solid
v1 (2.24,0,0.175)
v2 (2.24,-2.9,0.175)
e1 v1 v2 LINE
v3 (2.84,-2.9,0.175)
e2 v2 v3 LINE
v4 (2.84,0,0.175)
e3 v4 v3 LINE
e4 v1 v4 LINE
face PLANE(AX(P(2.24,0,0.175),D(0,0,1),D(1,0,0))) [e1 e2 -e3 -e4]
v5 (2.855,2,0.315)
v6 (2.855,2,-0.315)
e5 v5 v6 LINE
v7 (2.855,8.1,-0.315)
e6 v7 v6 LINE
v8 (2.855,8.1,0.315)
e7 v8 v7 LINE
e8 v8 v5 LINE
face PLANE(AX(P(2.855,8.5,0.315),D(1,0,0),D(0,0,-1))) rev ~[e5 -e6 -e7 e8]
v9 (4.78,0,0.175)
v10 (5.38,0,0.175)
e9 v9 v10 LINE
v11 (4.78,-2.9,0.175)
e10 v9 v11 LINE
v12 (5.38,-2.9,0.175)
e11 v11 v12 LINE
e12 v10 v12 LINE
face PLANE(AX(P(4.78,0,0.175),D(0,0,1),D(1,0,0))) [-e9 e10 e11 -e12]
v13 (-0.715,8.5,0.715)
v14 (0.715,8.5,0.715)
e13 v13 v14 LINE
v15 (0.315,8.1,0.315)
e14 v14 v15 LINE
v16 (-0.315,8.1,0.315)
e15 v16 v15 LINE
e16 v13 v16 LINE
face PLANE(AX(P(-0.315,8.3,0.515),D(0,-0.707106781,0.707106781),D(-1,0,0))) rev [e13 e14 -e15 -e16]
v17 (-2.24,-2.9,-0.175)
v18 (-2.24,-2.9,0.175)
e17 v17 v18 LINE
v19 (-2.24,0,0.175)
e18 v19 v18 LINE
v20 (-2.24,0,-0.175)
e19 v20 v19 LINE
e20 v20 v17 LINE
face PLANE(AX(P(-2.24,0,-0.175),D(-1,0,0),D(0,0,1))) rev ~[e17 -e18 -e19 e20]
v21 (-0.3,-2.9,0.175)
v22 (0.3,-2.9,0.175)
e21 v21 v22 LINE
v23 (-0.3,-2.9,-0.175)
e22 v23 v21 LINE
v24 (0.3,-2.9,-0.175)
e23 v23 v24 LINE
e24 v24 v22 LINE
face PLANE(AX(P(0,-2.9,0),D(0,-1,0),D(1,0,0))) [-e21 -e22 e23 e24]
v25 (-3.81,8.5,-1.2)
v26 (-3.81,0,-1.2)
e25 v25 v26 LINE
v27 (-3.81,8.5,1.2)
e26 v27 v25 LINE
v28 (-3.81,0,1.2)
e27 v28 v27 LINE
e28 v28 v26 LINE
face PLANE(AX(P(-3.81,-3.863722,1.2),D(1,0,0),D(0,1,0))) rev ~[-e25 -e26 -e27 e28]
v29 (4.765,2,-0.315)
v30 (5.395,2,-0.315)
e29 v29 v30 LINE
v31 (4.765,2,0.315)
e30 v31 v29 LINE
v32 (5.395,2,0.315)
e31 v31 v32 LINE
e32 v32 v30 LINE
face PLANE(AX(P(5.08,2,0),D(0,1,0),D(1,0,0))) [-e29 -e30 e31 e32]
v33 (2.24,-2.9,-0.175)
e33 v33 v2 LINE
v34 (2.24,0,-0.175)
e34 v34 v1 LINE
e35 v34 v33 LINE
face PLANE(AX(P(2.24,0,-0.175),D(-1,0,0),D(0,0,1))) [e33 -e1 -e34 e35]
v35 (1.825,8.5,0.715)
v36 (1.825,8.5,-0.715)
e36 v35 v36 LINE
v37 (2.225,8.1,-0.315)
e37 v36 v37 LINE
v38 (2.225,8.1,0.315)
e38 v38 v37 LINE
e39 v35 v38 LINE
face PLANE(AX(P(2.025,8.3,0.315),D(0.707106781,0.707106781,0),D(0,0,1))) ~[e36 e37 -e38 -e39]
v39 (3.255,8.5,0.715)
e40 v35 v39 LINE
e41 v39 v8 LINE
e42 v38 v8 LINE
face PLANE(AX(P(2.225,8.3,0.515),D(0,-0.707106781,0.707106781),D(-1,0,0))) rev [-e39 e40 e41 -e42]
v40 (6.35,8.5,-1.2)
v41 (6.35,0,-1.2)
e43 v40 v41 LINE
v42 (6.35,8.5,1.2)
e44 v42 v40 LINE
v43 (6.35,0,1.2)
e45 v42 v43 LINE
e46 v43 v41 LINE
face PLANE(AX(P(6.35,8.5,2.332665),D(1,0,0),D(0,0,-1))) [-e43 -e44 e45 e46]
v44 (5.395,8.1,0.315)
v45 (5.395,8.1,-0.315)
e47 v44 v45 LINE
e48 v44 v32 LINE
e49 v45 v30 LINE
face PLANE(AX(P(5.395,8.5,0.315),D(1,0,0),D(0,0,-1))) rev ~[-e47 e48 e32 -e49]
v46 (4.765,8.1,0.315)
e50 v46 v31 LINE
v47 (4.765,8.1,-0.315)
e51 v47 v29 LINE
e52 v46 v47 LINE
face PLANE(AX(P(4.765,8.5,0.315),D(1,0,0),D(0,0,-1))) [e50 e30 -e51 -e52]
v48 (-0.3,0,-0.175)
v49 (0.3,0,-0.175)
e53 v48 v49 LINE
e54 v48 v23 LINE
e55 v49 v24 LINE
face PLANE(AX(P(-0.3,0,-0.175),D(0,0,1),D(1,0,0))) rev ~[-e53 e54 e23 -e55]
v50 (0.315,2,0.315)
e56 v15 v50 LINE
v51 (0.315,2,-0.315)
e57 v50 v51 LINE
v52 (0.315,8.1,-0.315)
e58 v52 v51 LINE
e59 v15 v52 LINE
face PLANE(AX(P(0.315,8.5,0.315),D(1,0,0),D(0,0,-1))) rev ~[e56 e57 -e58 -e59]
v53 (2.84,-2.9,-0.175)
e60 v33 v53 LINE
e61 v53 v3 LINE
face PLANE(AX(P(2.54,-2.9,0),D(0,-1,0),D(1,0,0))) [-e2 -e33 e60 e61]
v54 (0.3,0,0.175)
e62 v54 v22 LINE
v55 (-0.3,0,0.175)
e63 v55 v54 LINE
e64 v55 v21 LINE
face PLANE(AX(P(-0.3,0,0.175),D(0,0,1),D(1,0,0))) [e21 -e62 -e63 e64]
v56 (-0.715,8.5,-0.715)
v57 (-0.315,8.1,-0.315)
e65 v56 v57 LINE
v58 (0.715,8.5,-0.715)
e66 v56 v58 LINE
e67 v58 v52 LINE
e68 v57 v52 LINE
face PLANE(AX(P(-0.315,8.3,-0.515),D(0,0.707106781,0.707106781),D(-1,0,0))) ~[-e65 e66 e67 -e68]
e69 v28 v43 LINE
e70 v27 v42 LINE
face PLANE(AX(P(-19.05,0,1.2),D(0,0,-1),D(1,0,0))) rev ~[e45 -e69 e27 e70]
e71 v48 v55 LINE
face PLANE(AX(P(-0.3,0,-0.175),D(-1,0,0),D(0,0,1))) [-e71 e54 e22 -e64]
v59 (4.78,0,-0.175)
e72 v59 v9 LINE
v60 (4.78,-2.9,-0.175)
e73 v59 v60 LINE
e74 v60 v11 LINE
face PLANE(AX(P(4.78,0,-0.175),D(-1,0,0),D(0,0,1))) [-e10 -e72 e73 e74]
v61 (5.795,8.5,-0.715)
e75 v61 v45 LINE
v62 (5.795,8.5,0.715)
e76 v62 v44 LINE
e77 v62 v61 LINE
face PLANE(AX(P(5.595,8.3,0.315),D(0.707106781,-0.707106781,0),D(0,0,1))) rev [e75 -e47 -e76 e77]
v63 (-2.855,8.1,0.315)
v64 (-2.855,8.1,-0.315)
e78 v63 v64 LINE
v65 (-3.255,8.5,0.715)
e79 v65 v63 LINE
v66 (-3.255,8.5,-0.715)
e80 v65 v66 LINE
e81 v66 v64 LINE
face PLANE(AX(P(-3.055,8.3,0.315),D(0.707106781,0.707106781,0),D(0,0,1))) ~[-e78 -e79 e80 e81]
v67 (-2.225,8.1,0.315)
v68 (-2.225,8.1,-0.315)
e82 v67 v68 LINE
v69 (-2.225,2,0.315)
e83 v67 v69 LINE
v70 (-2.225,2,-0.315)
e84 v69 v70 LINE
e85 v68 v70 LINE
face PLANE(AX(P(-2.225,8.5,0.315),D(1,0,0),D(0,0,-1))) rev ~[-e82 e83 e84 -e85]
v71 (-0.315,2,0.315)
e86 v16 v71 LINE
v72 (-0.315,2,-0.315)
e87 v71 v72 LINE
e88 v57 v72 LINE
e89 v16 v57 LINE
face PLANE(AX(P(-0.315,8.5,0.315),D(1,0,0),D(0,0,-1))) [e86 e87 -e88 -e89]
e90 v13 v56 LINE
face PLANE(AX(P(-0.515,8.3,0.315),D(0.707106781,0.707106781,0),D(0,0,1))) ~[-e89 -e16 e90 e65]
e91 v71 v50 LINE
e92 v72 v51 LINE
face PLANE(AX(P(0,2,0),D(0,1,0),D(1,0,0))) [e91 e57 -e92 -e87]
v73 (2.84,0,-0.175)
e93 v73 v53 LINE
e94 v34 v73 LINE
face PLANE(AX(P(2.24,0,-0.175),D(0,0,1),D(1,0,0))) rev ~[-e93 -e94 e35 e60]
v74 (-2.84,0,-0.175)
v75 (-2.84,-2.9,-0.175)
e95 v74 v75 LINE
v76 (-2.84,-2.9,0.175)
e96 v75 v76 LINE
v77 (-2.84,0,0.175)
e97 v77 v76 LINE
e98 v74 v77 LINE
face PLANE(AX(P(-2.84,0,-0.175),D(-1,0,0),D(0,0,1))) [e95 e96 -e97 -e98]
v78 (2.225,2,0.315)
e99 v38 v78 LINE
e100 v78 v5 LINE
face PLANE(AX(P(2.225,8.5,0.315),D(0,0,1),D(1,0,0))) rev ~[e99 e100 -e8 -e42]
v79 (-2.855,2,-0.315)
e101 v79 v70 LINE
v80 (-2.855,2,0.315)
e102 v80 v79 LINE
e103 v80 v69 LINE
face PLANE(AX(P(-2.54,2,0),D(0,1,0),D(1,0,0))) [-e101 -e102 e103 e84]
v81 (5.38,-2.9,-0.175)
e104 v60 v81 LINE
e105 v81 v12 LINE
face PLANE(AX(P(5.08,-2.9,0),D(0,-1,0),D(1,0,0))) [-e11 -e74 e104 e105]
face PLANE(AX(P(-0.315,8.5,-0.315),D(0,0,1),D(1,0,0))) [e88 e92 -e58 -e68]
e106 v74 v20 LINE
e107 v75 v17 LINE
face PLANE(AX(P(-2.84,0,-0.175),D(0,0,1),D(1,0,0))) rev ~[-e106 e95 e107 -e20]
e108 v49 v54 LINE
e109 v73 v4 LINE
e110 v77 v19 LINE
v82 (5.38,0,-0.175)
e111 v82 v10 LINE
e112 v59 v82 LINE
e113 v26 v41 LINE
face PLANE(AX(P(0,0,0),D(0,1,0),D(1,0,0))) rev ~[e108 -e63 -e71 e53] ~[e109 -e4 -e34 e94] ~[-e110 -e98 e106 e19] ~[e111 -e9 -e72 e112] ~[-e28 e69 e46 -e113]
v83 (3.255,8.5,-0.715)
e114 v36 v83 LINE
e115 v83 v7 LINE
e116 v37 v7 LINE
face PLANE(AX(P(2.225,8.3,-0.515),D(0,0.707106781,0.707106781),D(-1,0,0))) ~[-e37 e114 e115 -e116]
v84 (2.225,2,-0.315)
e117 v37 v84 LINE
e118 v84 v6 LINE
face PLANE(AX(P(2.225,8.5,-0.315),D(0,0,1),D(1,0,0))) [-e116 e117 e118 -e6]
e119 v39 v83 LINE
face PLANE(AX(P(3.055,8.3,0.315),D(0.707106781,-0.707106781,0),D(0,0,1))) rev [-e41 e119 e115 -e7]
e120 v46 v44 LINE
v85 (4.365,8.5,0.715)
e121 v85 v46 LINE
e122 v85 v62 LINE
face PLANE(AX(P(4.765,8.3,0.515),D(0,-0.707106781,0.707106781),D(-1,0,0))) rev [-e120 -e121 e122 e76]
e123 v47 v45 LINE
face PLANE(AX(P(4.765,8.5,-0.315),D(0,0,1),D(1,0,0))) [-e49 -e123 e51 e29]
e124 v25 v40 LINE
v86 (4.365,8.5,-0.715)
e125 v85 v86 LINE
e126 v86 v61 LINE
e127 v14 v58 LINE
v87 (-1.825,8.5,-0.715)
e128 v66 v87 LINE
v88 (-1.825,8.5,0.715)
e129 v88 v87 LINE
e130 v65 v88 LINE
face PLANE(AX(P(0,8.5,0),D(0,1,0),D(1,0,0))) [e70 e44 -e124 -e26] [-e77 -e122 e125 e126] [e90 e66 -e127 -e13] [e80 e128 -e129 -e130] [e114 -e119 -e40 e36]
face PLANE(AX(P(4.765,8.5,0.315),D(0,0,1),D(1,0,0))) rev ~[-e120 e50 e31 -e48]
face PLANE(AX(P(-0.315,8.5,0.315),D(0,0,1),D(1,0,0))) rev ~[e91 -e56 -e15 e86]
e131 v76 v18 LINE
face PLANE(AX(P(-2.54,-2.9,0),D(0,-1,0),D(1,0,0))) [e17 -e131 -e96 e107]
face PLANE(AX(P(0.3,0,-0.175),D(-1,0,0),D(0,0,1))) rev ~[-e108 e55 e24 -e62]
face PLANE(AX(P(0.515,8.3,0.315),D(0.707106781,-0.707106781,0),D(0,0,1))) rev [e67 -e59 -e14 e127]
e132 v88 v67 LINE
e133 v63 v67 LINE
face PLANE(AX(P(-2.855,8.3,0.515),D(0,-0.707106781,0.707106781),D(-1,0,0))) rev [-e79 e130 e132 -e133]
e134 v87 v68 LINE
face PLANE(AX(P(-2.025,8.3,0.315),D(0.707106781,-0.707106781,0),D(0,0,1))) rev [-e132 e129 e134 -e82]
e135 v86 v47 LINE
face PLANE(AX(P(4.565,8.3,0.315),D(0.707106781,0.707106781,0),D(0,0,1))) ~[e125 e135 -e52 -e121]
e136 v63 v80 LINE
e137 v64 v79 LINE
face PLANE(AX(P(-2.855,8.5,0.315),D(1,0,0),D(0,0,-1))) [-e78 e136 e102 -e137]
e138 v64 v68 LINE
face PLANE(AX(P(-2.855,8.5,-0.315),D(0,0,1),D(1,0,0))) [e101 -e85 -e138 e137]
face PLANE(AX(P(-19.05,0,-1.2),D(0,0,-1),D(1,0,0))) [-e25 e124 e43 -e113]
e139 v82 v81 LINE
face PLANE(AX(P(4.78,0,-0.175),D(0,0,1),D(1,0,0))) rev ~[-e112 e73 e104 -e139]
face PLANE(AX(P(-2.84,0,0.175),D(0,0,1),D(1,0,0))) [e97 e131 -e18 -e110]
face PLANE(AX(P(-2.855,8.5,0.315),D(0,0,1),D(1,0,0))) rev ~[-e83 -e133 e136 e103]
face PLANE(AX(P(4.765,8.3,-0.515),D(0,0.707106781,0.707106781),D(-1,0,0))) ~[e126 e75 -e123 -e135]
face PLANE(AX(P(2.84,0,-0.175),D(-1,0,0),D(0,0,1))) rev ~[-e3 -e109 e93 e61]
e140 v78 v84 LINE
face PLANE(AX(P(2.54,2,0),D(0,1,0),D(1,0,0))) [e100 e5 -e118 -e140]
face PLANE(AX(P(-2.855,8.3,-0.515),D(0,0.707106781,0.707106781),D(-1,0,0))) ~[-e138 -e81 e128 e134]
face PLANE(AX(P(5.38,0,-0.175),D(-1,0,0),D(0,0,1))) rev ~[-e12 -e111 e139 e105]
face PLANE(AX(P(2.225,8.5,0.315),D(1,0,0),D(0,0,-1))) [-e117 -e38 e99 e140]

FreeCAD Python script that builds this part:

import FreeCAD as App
import Part
import Sketcher
from FreeCAD import Vector


def edges_at(feature, points):
    """Names of the edges that pass closest to the given points."""
    edges = feature.Shape.Edges
    near = lambda p: min(range(len(edges)), key=lambda i: edges[i].distToShape(Part.Vertex(*p))[0])
    return sorted({f"Edge{near(p) + 1}" for p in points})

doc = App.newDocument("Part")
body = doc.addObject("PartDesign::Body", "Body")

sketch1 = body.newObject("Sketcher::SketchObject", "Sketch")
sketch1.AttachmentSupport = (doc.getObject("XZ_Plane"), [""])
sketch1.MapMode = "FlatFace"
sketch1.addGeometry([
    Part.LineSegment(Vector(-19.1, -1.2, 0), Vector(-19.1, 1.2, 0)),
    Part.LineSegment(Vector(-19.1, 1.2, 0), Vector(19.1, 1.2, 0)),
    Part.LineSegment(Vector(19.1, 1.2, 0), Vector(19.1, -1.2, 0)),
    Part.LineSegment(Vector(19.1, -1.2, 0), Vector(-19.1, -1.2, 0)),
], False)
sketch1.addConstraint([
    Sketcher.Constraint("Coincident", 0, 2, 1, 1),
    Sketcher.Constraint("Coincident", 1, 2, 2, 1),
    Sketcher.Constraint("Coincident", 2, 2, 3, 1),
    Sketcher.Constraint("Coincident", 3, 2, 0, 1),
    Sketcher.Constraint("Vertical", 0),
    Sketcher.Constraint("Horizontal", 1),
    Sketcher.Constraint("Vertical", 2),
    Sketcher.Constraint("Horizontal", 3),
    Sketcher.Constraint("Symmetric", 0, 2, 2, 2, -1, 1),
    Sketcher.Constraint("DistanceX", 1, 1, 1, 2, 38.1),
    Sketcher.Constraint("DistanceY", 0, 1, 0, 2, 2.4),
])
pad1 = body.newObject("PartDesign::Pad", "Pad")
pad1.Profile = sketch1
pad1.Length = 8.5
pad1.Reversed = True

sketch2 = body.newObject("Sketcher::SketchObject", "Sketch001")
sketch2.AttachmentSupport = (doc.getObject("XZ_Plane"), [""])
sketch2.MapMode = "FlatFace"
sketch2.AttachmentOffset = App.Placement(Vector(0, 0, -8.5), App.Rotation())
sketch2.addGeometry([
    Part.LineSegment(Vector(-15.6, -0.3, 0), Vector(-15.6, 0.3, 0)),
    Part.LineSegment(Vector(-15.6, 0.3, 0), Vector(-14.9, 0.3, 0)),
    Part.LineSegment(Vector(-14.9, 0.3, 0), Vector(-14.9, -0.3, 0)),
    Part.LineSegment(Vector(-14.9, -0.3, 0), Vector(-15.6, -0.3, 0)),
    Part.LineSegment(Vector(-18.1, -0.3, 0), Vector(-18.1, 0.3, 0)),
    Part.LineSegment(Vector(-18.1, 0.3, 0), Vector(-17.5, 0.3, 0)),
    Part.LineSegment(Vector(-17.5, 0.3, 0), Vector(-17.5, -0.3, 0)),
    Part.LineSegment(Vector(-17.5, -0.3, 0), Vector(-18.1, -0.3, 0)),
    Part.LineSegment(Vector(-13, -0.3, 0), Vector(-13, 0.3, 0)),
    Part.LineSegment(Vector(-13, 0.3, 0), Vector(-12.4, 0.3, 0)),
    Part.LineSegment(Vector(-12.4, 0.3, 0), Vector(-12.4, -0.3, 0)),
    Part.LineSegment(Vector(-12.4, -0.3, 0), Vector(-13, -0.3, 0)),
    Part.LineSegment(Vector(-10.5, -0.3, 0), Vector(-10.5, 0.3, 0)),
    Part.LineSegment(Vector(-10.5, 0.3, 0), Vector(-9.8, 0.3, 0)),
    Part.LineSegment(Vector(-9.8, 0.3, 0), Vector(-9.8, -0.3, 0)),
    Part.LineSegment(Vector(-9.8, -0.3, 0), Vector(-10.5, -0.3, 0)),
    Part.LineSegment(Vector(-7.9, -0.3, 0), Vector(-7.9, 0.3, 0)),
    Part.LineSegment(Vector(-7.9, 0.3, 0), Vector(-7.3, 0.3, 0)),
    Part.LineSegment(Vector(-7.3, 0.3, 0), Vector(-7.3, -0.3, 0)),
    Part.LineSegment(Vector(-7.3, -0.3, 0), Vector(-7.9, -0.3, 0)),
    Part.LineSegment(Vector(-5.4, -0.3, 0), Vector(-5.4, 0.3, 0)),
    Part.LineSegment(Vector(-5.4, 0.3, 0), Vector(-4.8, 0.3, 0)),
    Part.LineSegment(Vector(-4.8, 0.3, 0), Vector(-4.8, -0.3, 0)),
    Part.LineSegment(Vector(-4.8, -0.3, 0), Vector(-5.4, -0.3, 0)),
    Part.LineSegment(Vector(-2.9, -0.3, 0), Vector(-2.9, 0.3, 0)),
    Part.LineSegment(Vector(-2.9, 0.3, 0), Vector(-2.2, 0.3, 0)),
    Part.LineSegment(Vector(-2.2, 0.3, 0), Vector(-2.2, -0.3, 0)),
    Part.LineSegment(Vector(-2.2, -0.3, 0), Vector(-2.9, -0.3, 0)),
    Part.LineSegment(Vector(-0.3, -0.3, 0), Vector(-0.3, 0.3, 0)),
    Part.LineSegment(Vector(-0.3, 0.3, 0), Vector(0.3, 0.3, 0)),
    Part.LineSegment(Vector(0.3, 0.3, 0), Vector(0.3, -0.3, 0)),
    Part.LineSegment(Vector(0.3, -0.3, 0), Vector(-0.3, -0.3, 0)),
    Part.LineSegment(Vector(2.2, -0.3, 0), Vector(2.2, 0.3, 0)),
    Part.LineSegment(Vector(2.2, 0.3, 0), Vector(2.9, 0.3, 0)),
    Part.LineSegment(Vector(2.9, 0.3, 0), Vector(2.9, -0.3, 0)),
    Part.LineSegment(Vector(2.9, -0.3, 0), Vector(2.2, -0.3, 0)),
    Part.LineSegment(Vector(4.8, -0.3, 0), Vector(4.8, 0.3, 0)),
    Part.LineSegment(Vector(4.8, 0.3, 0), Vector(5.4, 0.3, 0)),
    Part.LineSegment(Vector(5.4, 0.3, 0), Vector(5.4, -0.3, 0)),
    Part.LineSegment(Vector(5.4, -0.3, 0), Vector(4.8, -0.3, 0)),
    Part.LineSegment(Vector(7.3, -0.3, 0), Vector(7.3, 0.3, 0)),
    Part.LineSegment(Vector(7.3, 0.3, 0), Vector(7.9, 0.3, 0)),
    Part.LineSegment(Vector(7.9, 0.3, 0), Vector(7.9, -0.3, 0)),
    Part.LineSegment(Vector(7.9, -0.3, 0), Vector(7.3, -0.3, 0)),
    Part.LineSegment(Vector(9.8, -0.3, 0), Vector(9.8, 0.3, 0)),
    Part.LineSegment(Vector(9.8, 0.3, 0), Vector(10.5, 0.3, 0)),
    Part.LineSegment(Vector(10.5, 0.3, 0), Vector(10.5, -0.3, 0)),
    Part.LineSegment(Vector(10.5, -0.3, 0), Vector(9.8, -0.3, 0)),
    Part.LineSegment(Vector(12.4, -0.3, 0), Vector(12.4, 0.3, 0)),
    Part.LineSegment(Vector(12.4, 0.3, 0), Vector(13, 0.3, 0)),
    Part.LineSegment(Vector(13, 0.3, 0), Vector(13, -0.3, 0)),
    Part.LineSegment(Vector(13, -0.3, 0), Vector(12.4, -0.3, 0)),
    Part.LineSegment(Vector(14.9, -0.3, 0), Vector(14.9, 0.3, 0)),
    Part.LineSegment(Vector(14.9, 0.3, 0), Vector(15.6, 0.3, 0)),
    Part.LineSegment(Vector(15.6, 0.3, 0), Vector(15.6, -0.3, 0)),
    Part.LineSegment(Vector(15.6, -0.3, 0), Vector(14.9, -0.3, 0)),
    Part.LineSegment(Vector(17.5, -0.3, 0), Vector(17.5, 0.3, 0)),
    Part.LineSegment(Vector(17.5, 0.3, 0), Vector(18.1, 0.3, 0)),
    Part.LineSegment(Vector(18.1, 0.3, 0), Vector(18.1, -0.3, 0)),
    Part.LineSegment(Vector(18.1, -0.3, 0), Vector(17.5, -0.3, 0)),
], False)
sketch2.addConstraint([
    Sketcher.Constraint("Coincident", 0, 2, 1, 1),
    Sketcher.Constraint("Coincident", 1, 2, 2, 1),
    Sketcher.Constraint("Coincident", 2, 2, 3, 1),
    Sketcher.Constraint("Coincident", 3, 2, 0, 1),
    Sketcher.Constraint("Coincident", 4, 2, 5, 1),
    Sketcher.Constraint("Coincident", 5, 2, 6, 1),
    Sketcher.Constraint("Coincident", 6, 2, 7, 1),
    Sketcher.Constraint("Coincident", 7, 2, 4, 1),
    Sketcher.Constraint("Coincident", 8, 2, 9, 1),
    Sketcher.Constraint("Coincident", 9, 2, 10, 1),
    Sketcher.Constraint("Coincident", 10, 2, 11, 1),
    Sketcher.Constraint("Coincident", 11, 2, 8, 1),
    Sketcher.Constraint("Coincident", 12, 2, 13, 1),
    Sketcher.Constraint("Coincident", 13, 2, 14, 1),
    Sketcher.Constraint("Coincident", 14, 2, 15, 1),
    Sketcher.Constraint("Coincident", 15, 2, 12, 1),
    Sketcher.Constraint("Coincident", 16, 2, 17, 1),
    Sketcher.Constraint("Coincident", 17, 2, 18, 1),
    Sketcher.Constraint("Coincident", 18, 2, 19, 1),
    Sketcher.Constraint("Coincident", 19, 2, 16, 1),
    Sketcher.Constraint("Coincident", 20, 2, 21, 1),
    Sketcher.Constraint("Coincident", 21, 2, 22, 1),
    Sketcher.Constraint("Coincident", 22, 2, 23, 1),
    Sketcher.Constraint("Coincident", 23, 2, 20, 1),
    Sketcher.Constraint("Coincident", 24, 2, 25, 1),
    Sketcher.Constraint("Coincident", 25, 2, 26, 1),
    Sketcher.Constraint("Coincident", 26, 2, 27, 1),
    Sketcher.Constraint("Coincident", 27, 2, 24, 1),
    Sketcher.Constraint("Coincident", 28, 2, 29, 1),
    Sketcher.Constraint("Coincident", 29, 2, 30, 1),
    Sketcher.Constraint("Coincident", 30, 2, 31, 1),
    Sketcher.Constraint("Coincident", 31, 2, 28, 1),
    Sketcher.Constraint("Coincident", 32, 2, 33, 1),
    Sketcher.Constraint("Coincident", 33, 2, 34, 1),
    Sketcher.Constraint("Coincident", 34, 2, 35, 1),
    Sketcher.Constraint("Coincident", 35, 2, 32, 1),
    Sketcher.Constraint("Coincident", 36, 2, 37, 1),
    Sketcher.Constraint("Coincident", 37, 2, 38, 1),
    Sketcher.Constraint("Coincident", 38, 2, 39, 1),
    Sketcher.Constraint("Coincident", 39, 2, 36, 1),
    Sketcher.Constraint("Coincident", 40, 2, 41, 1),
    Sketcher.Constraint("Coincident", 41, 2, 42, 1),
    Sketcher.Constraint("Coincident", 42, 2, 43, 1),
    Sketcher.Constraint("Coincident", 43, 2, 40, 1),
    Sketcher.Constraint("Coincident", 44, 2, 45, 1),
    Sketcher.Constraint("Coincident", 45, 2, 46, 1),
    Sketcher.Constraint("Coincident", 46, 2, 47, 1),
    Sketcher.Constraint("Coincident", 47, 2, 44, 1),
    Sketcher.Constraint("Coincident", 48, 2, 49, 1),
    Sketcher.Constraint("Coincident", 49, 2, 50, 1),
    Sketcher.Constraint("Coincident", 50, 2, 51, 1),
    Sketcher.Constraint("Coincident", 51, 2, 48, 1),
    Sketcher.Constraint("Coincident", 52, 2, 53, 1),
    Sketcher.Constraint("Coincident", 53, 2, 54, 1),
    Sketcher.Constraint("Coincident", 54, 2, 55, 1),
    Sketcher.Constraint("Coincident", 55, 2, 52, 1),
    Sketcher.Constraint("Coincident", 56, 2, 57, 1),
    Sketcher.Constraint("Coincident", 57, 2, 58, 1),
    Sketcher.Constraint("Coincident", 58, 2, 59, 1),
    Sketcher.Constraint("Coincident", 59, 2, 56, 1),
    Sketcher.Constraint("Vertical", 0),
    Sketcher.Constraint("Horizontal", 1),
    Sketcher.Constraint("Vertical", 2),
    Sketcher.Constraint("Horizontal", 3),
    Sketcher.Constraint("Vertical", 4),
    Sketcher.Constraint("Horizontal", 5),
    Sketcher.Constraint("Vertical", 6),
    Sketcher.Constraint("Horizontal", 7),
    Sketcher.Constraint("Vertical", 8),
    Sketcher.Constraint("Horizontal", 9),
    Sketcher.Constraint("Vertical", 10),
    Sketcher.Constraint("Horizontal", 11),
    Sketcher.Constraint("Vertical", 12),
    Sketcher.Constraint("Horizontal", 13),
    Sketcher.Constraint("Vertical", 14),
    Sketcher.Constraint("Horizontal", 15),
    Sketcher.Constraint("Vertical", 16),
    Sketcher.Constraint("Horizontal", 17),
    Sketcher.Constraint("Vertical", 18),
    Sketcher.Constraint("Horizontal", 19),
    Sketcher.Constraint("Vertical", 20),
    Sketcher.Constraint("Horizontal", 21),
    Sketcher.Constraint("Vertical", 22),
    Sketcher.Constraint("Horizontal", 23),
    Sketcher.Constraint("Vertical", 24),
    Sketcher.Constraint("Horizontal", 25),
    Sketcher.Constraint("Vertical", 26),
    Sketcher.Constraint("Horizontal", 27),
    Sketcher.Constraint("Vertical", 28),
    Sketcher.Constraint("Horizontal", 29),
    Sketcher.Constraint("Vertical", 30),
    Sketcher.Constraint("Horizontal", 31),
    Sketcher.Constraint("Vertical", 32),
    Sketcher.Constraint("Horizontal", 33),
    Sketcher.Constraint("Vertical", 34),
    Sketcher.Constraint("Horizontal", 35),
    Sketcher.Constraint("Vertical", 36),
    Sketcher.Constraint("Horizontal", 37),
    Sketcher.Constraint("Vertical", 38),
    Sketcher.Constraint("Horizontal", 39),
    Sketcher.Constraint("Vertical", 40),
    Sketcher.Constraint("Horizontal", 41),
    Sketcher.Constraint("Vertical", 42),
    Sketcher.Constraint("Horizontal", 43),
    Sketcher.Constraint("Vertical", 44),
    Sketcher.Constraint("Horizontal", 45),
    Sketcher.Constraint("Vertical", 46),
    Sketcher.Constraint("Horizontal", 47),
    Sketcher.Constraint("Vertical", 48),
    Sketcher.Constraint("Horizontal", 49),
    Sketcher.Constraint("Vertical", 50),
    Sketcher.Constraint("Horizontal", 51),
    Sketcher.Constraint("Vertical", 52),
    Sketcher.Constraint("Horizontal", 53),
    Sketcher.Constraint("Vertical", 54),
    Sketcher.Constraint("Horizontal", 55),
    Sketcher.Constraint("Vertical", 56),
    Sketcher.Constraint("Horizontal", 57),
    Sketcher.Constraint("Vertical", 58),
    Sketcher.Constraint("Horizontal", 59),
    Sketcher.Constraint("Symmetric", 28, 2, 30, 2, -1, 1),
    Sketcher.Constraint("Symmetric", 26, 2, 32, 2, -1, 1),
    Sketcher.Constraint("Symmetric", 24, 2, 34, 2, -1, 1),
    Sketcher.Constraint("Symmetric", 22, 2, 36, 2, -1, 1),
    Sketcher.Constraint("Symmetric", 20, 2, 38, 2, -1, 1),
    Sketcher.Constraint("Symmetric", 18, 2, 40, 2, -1, 1),
    Sketcher.Constraint("Symmetric", 16, 2, 42, 2, -1, 1),
    Sketcher.Constraint("Symmetric", 14, 2, 44, 2, -1, 1),
    Sketcher.Constraint("Symmetric", 12, 2, 46, 2, -1, 1),
    Sketcher.Constraint("Symmetric", 10, 2, 48, 2, -1, 1),
    Sketcher.Constraint("Symmetric", 8, 2, 50, 2, -1, 1),
    Sketcher.Constraint("Symmetric", 2, 2, 52, 2, -1, 1),
    Sketcher.Constraint("Symmetric", 0, 2, 54, 2, -1, 1),
    Sketcher.Constraint("Symmetric", 6, 2, 56, 2, -1, 1),
    Sketcher.Constraint("Symmetric", 4, 2, 58, 2, -1, 1),
    Sketcher.Constraint("Horizontal", 1, 2, 4, 2),
    Sketcher.Constraint("Horizontal", 3, 2, 6, 2),
    Sketcher.Constraint("Horizontal", 5, 2, 8, 2),
    Sketcher.Constraint("Horizontal", 7, 2, 10, 2),
    Sketcher.Constraint("Horizontal", 9, 2, 12, 2),
    Sketcher.Constraint("Horizontal", 11, 2, 14, 2),
    Sketcher.Constraint("Horizontal", 13, 2, 16, 2),
    Sketcher.Constraint("Horizontal", 15, 2, 18, 2),
    Sketcher.Constraint("Horizontal", 17, 2, 20, 2),
    Sketcher.Constraint("Horizontal", 19, 2, 22, 2),
    Sketcher.Constraint("Horizontal", 21, 2, 24, 2),
    Sketcher.Constraint("Horizontal", 23, 2, 26, 2),
    Sketcher.Constraint("Horizontal", 25, 2, 28, 2),
    Sketcher.Constraint("Horizontal", 27, 2, 30, 2),
    Sketcher.Constraint("Equal", 3, 5),
    Sketcher.Constraint("Equal", 7, 9),
    Sketcher.Constraint("Equal", 11, 13),
    Sketcher.Constraint("Equal", 15, 17),
    Sketcher.Constraint("Equal", 19, 21),
    Sketcher.Constraint("Equal", 23, 25),
    Sketcher.Constraint("Equal", 27, 29),
    Sketcher.Constraint("Equal", 59, 0),
    Sketcher.Constraint("DistanceX", 1, 1, 1, 2, 0.63),
    Sketcher.Constraint("DistanceX", 4, 2, 0, 2, 2.54),
    Sketcher.Constraint("DistanceX", 1, 2, 8, 2, 1.91),
    Sketcher.Constraint("DistanceX", 9, 2, 12, 2, 1.91),
    Sketcher.Constraint("DistanceX", 13, 2, 16, 2, 1.91),
    Sketcher.Constraint("DistanceX", 17, 2, 20, 2, 1.91),
    Sketcher.Constraint("DistanceX", 21, 2, 24, 2, 1.91),
    Sketcher.Constraint("DistanceX", 25, 2, 28, 2, 1.91),
])
pocket1 = body.newObject("PartDesign::Pocket", "Pocket")
pocket1.Profile = sketch2
pocket1.Length = 6.5
pocket1.Reversed = True

sketch3 = body.newObject("Sketcher::SketchObject", "Sketch002")
sketch3.AttachmentSupport = (doc.getObject("XZ_Plane"), [""])
sketch3.MapMode = "FlatFace"
sketch3.addGeometry([
    Part.LineSegment(Vector(-15.54, 0.17, 0), Vector(-15.54, -0.17, 0)),
    Part.LineSegment(Vector(-15.54, -0.17, 0), Vector(-14.94, -0.17, 0)),
    Part.LineSegment(Vector(-14.94, -0.17, 0), Vector(-14.94, 0.17, 0)),
    Part.LineSegment(Vector(-14.94, 0.17, 0), Vector(-15.54, 0.17, 0)),
    Part.LineSegment(Vector(-18.08, 0.17, 0), Vector(-18.08, -0.17, 0)),
    Part.LineSegment(Vector(-18.08, -0.17, 0), Vector(-17.48, -0.17, 0)),
    Part.LineSegment(Vector(-17.48, -0.17, 0), Vector(-17.48, 0.17, 0)),
    Part.LineSegment(Vector(-17.48, 0.17, 0), Vector(-18.08, 0.17, 0)),
    Part.LineSegment(Vector(-13, 0.17, 0), Vector(-13, -0.17, 0)),
    Part.LineSegment(Vector(-13, -0.17, 0), Vector(-12.4, -0.17, 0)),
    Part.LineSegment(Vector(-12.4, -0.17, 0), Vector(-12.4, 0.17, 0)),
    Part.LineSegment(Vector(-12.4, 0.17, 0), Vector(-13, 0.17, 0)),
    Part.LineSegment(Vector(-10.46, 0.17, 0), Vector(-10.46, -0.17, 0)),
    Part.LineSegment(Vector(-10.46, -0.17, 0), Vector(-9.86, -0.17, 0)),
    Part.LineSegment(Vector(-9.86, -0.17, 0), Vector(-9.86, 0.17, 0)),
    Part.LineSegment(Vector(-9.86, 0.17, 0), Vector(-10.46, 0.17, 0)),
    Part.LineSegment(Vector(-7.92, 0.17, 0), Vector(-7.92, -0.17, 0)),
    Part.LineSegment(Vector(-7.92, -0.17, 0), Vector(-7.32, -0.17, 0)),
    Part.LineSegment(Vector(-7.32, -0.17, 0), Vector(-7.32, 0.17, 0)),
    Part.LineSegment(Vector(-7.32, 0.17, 0), Vector(-7.92, 0.17, 0)),
    Part.LineSegment(Vector(-5.38, 0.17, 0), Vector(-5.38, -0.17, 0)),
    Part.LineSegment(Vector(-5.38, -0.17, 0), Vector(-4.78, -0.17, 0)),
    Part.LineSegment(Vector(-4.78, -0.17, 0), Vector(-4.78, 0.17, 0)),
    Part.LineSegment(Vector(-4.78, 0.17, 0), Vector(-5.38, 0.17, 0)),
    Part.LineSegment(Vector(-2.84, 0.17, 0), Vector(-2.84, -0.17, 0)),
    Part.LineSegment(Vector(-2.84, -0.17, 0), Vector(-2.24, -0.17, 0)),
    Part.LineSegment(Vector(-2.24, -0.17, 0), Vector(-2.24, 0.17, 0)),
    Part.LineSegment(Vector(-2.24, 0.17, 0), Vector(-2.84, 0.17, 0)),
    Part.LineSegment(Vector(-0.3, 0.17, 0), Vector(-0.3, -0.17, 0)),
    Part.LineSegment(Vector(-0.3, -0.17, 0), Vector(0.3, -0.17, 0)),
    Part.LineSegment(Vector(0.3, -0.17, 0), Vector(0.3, 0.17, 0)),
    Part.LineSegment(Vector(0.3, 0.17, 0), Vector(-0.3, 0.17, 0)),
    Part.LineSegment(Vector(2.24, 0.17, 0), Vector(2.24, -0.17, 0)),
    Part.LineSegment(Vector(2.24, -0.17, 0), Vector(2.84, -0.17, 0)),
    Part.LineSegment(Vector(2.84, -0.17, 0), Vector(2.84, 0.17, 0)),
    Part.LineSegment(Vector(2.84, 0.17, 0), Vector(2.24, 0.17, 0)),
    Part.LineSegment(Vector(4.78, 0.17, 0), Vector(4.78, -0.17, 0)),
    Part.LineSegment(Vector(4.78, -0.17, 0), Vector(5.38, -0.17, 0)),
    Part.LineSegment(Vector(5.38, -0.17, 0), Vector(5.38, 0.17, 0)),
    Part.LineSegment(Vector(5.38, 0.17, 0), Vector(4.78, 0.17, 0)),
    Part.LineSegment(Vector(7.32, 0.17, 0), Vector(7.32, -0.17, 0)),
    Part.LineSegment(Vector(7.32, -0.17, 0), Vector(7.92, -0.17, 0)),
    Part.LineSegment(Vector(7.92, -0.17, 0), Vector(7.92, 0.17, 0)),
    Part.LineSegment(Vector(7.92, 0.17, 0), Vector(7.32, 0.17, 0)),
    Part.LineSegment(Vector(9.86, 0.17, 0), Vector(9.86, -0.17, 0)),
    Part.LineSegment(Vector(9.86, -0.17, 0), Vector(10.46, -0.17, 0)),
    Part.LineSegment(Vector(10.46, -0.17, 0), Vector(10.46, 0.17, 0)),
    Part.LineSegment(Vector(10.46, 0.17, 0), Vector(9.86, 0.17, 0)),
    Part.LineSegment(Vector(12.4, 0.17, 0), Vector(12.4, -0.17, 0)),
    Part.LineSegment(Vector(12.4, -0.17, 0), Vector(13, -0.17, 0)),
    Part.LineSegment(Vector(13, -0.17, 0), Vector(13, 0.17, 0)),
    Part.LineSegment(Vector(13, 0.17, 0), Vector(12.4, 0.17, 0)),
    Part.LineSegment(Vector(14.94, 0.17, 0), Vector(14.94, -0.17, 0)),
    Part.LineSegment(Vector(14.94, -0.17, 0), Vector(15.54, -0.17, 0)),
    Part.LineSegment(Vector(15.54, -0.17, 0), Vector(15.54, 0.17, 0)),
    Part.LineSegment(Vector(15.54, 0.17, 0), Vector(14.94, 0.17, 0)),
    Part.LineSegment(Vector(17.48, 0.17, 0), Vector(17.48, -0.17, 0)),
    Part.LineSegment(Vector(17.48, -0.17, 0), Vector(18.08, -0.17, 0)),
    Part.LineSegment(Vector(18.08, -0.17, 0), Vector(18.08, 0.17, 0)),
    Part.LineSegment(Vector(18.08, 0.17, 0), Vector(17.48, 0.17, 0)),
], False)
sketch3.addConstraint([
    Sketcher.Constraint("Coincident", 0, 2, 1, 1),
    Sketcher.Constraint("Coincident", 1, 2, 2, 1),
    Sketcher.Constraint("Coincident", 2, 2, 3, 1),
    Sketcher.Constraint("Coincident", 3, 2, 0, 1),
    Sketcher.Constraint("Coincident", 4, 2, 5, 1),
    Sketcher.Constraint("Coincident", 5, 2, 6, 1),
    Sketcher.Constraint("Coincident", 6, 2, 7, 1),
    Sketcher.Constraint("Coincident", 7, 2, 4, 1),
    Sketcher.Constraint("Coincident", 8, 2, 9, 1),
    Sketcher.Constraint("Coincident", 9, 2, 10, 1),
    Sketcher.Constraint("Coincident", 10, 2, 11, 1),
    Sketcher.Constraint("Coincident", 11, 2, 8, 1),
    Sketcher.Constraint("Coincident", 12, 2, 13, 1),
    Sketcher.Constraint("Coincident", 13, 2, 14, 1),
    Sketcher.Constraint("Coincident", 14, 2, 15, 1),
    Sketcher.Constraint("Coincident", 15, 2, 12, 1),
    Sketcher.Constraint("Coincident", 16, 2, 17, 1),
    Sketcher.Constraint("Coincident", 17, 2, 18, 1),
    Sketcher.Constraint("Coincident", 18, 2, 19, 1),
    Sketcher.Constraint("Coincident", 19, 2, 16, 1),
    Sketcher.Constraint("Coincident", 20, 2, 21, 1),
    Sketcher.Constraint("Coincident", 21, 2, 22, 1),
    Sketcher.Constraint("Coincident", 22, 2, 23, 1),
    Sketcher.Constraint("Coincident", 23, 2, 20, 1),
    Sketcher.Constraint("Coincident", 24, 2, 25, 1),
    Sketcher.Constraint("Coincident", 25, 2, 26, 1),
    Sketcher.Constraint("Coincident", 26, 2, 27, 1),
    Sketcher.Constraint("Coincident", 27, 2, 24, 1),
    Sketcher.Constraint("Coincident", 28, 2, 29, 1),
    Sketcher.Constraint("Coincident", 29, 2, 30, 1),
    Sketcher.Constraint("Coincident", 30, 2, 31, 1),
    Sketcher.Constraint("Coincident", 31, 2, 28, 1),
    Sketcher.Constraint("Coincident", 32, 2, 33, 1),
    Sketcher.Constraint("Coincident", 33, 2, 34, 1),
    Sketcher.Constraint("Coincident", 34, 2, 35, 1),
    Sketcher.Constraint("Coincident", 35, 2, 32, 1),
    Sketcher.Constraint("Coincident", 36, 2, 37, 1),
    Sketcher.Constraint("Coincident", 37, 2, 38, 1),
    Sketcher.Constraint("Coincident", 38, 2, 39, 1),
    Sketcher.Constraint("Coincident", 39, 2, 36, 1),
    Sketcher.Constraint("Coincident", 40, 2, 41, 1),
    Sketcher.Constraint("Coincident", 41, 2, 42, 1),
    Sketcher.Constraint("Coincident", 42, 2, 43, 1),
    Sketcher.Constraint("Coincident", 43, 2, 40, 1),
    Sketcher.Constraint("Coincident", 44, 2, 45, 1),
    Sketcher.Constraint("Coincident", 45, 2, 46, 1),
    Sketcher.Constraint("Coincident", 46, 2, 47, 1),
    Sketcher.Constraint("Coincident", 47, 2, 44, 1),
    Sketcher.Constraint("Coincident", 48, 2, 49, 1),
    Sketcher.Constraint("Coincident", 49, 2, 50, 1),
    Sketcher.Constraint("Coincident", 50, 2, 51, 1),
    Sketcher.Constraint("Coincident", 51, 2, 48, 1),
    Sketcher.Constraint("Coincident", 52, 2, 53, 1),
    Sketcher.Constraint("Coincident", 53, 2, 54, 1),
    Sketcher.Constraint("Coincident", 54, 2, 55, 1),
    Sketcher.Constraint("Coincident", 55, 2, 52, 1),
    Sketcher.Constraint("Coincident", 56, 2, 57, 1),
    Sketcher.Constraint("Coincident", 57, 2, 58, 1),
    Sketcher.Constraint("Coincident", 58, 2, 59, 1),
    Sketcher.Constraint("Coincident", 59, 2, 56, 1),
    Sketcher.Constraint("Vertical", 0),
    Sketcher.Constraint("Horizontal", 1),
    Sketcher.Constraint("Vertical", 2),
    Sketcher.Constraint("Horizontal", 3),
    Sketcher.Constraint("Vertical", 4),
    Sketcher.Constraint("Horizontal", 5),
    Sketcher.Constraint("Vertical", 6),
    Sketcher.Constraint("Horizontal", 7),
    Sketcher.Constraint("Vertical", 8),
    Sketcher.Constraint("Horizontal", 9),
    Sketcher.Constraint("Vertical", 10),
    Sketcher.Constraint("Horizontal", 11),
    Sketcher.Constraint("Vertical", 12),
    Sketcher.Constraint("Horizontal", 13),
    Sketcher.Constraint("Vertical", 14),
    Sketcher.Constraint("Horizontal", 15),
    Sketcher.Constraint("Vertical", 16),
    Sketcher.Constraint("Horizontal", 17),
    Sketcher.Constraint("Vertical", 18),
    Sketcher.Constraint("Horizontal", 19),
    Sketcher.Constraint("Vertical", 20),
    Sketcher.Constraint("Horizontal", 21),
    Sketcher.Constraint("Vertical", 22),
    Sketcher.Constraint("Horizontal", 23),
    Sketcher.Constraint("Vertical", 24),
    Sketcher.Constraint("Horizontal", 25),
    Sketcher.Constraint("Vertical", 26),
    Sketcher.Constraint("Horizontal", 27),
    Sketcher.Constraint("Vertical", 28),
    Sketcher.Constraint("Horizontal", 29),
    Sketcher.Constraint("Vertical", 30),
    Sketcher.Constraint("Horizontal", 31),
    Sketcher.Constraint("Vertical", 32),
    Sketcher.Constraint("Horizontal", 33),
    Sketcher.Constraint("Vertical", 34),
    Sketcher.Constraint("Horizontal", 35),
    Sketcher.Constraint("Vertical", 36),
    Sketcher.Constraint("Horizontal", 37),
    Sketcher.Constraint("Vertical", 38),
    Sketcher.Constraint("Horizontal", 39),
    Sketcher.Constraint("Vertical", 40),
    Sketcher.Constraint("Horizontal", 41),
    Sketcher.Constraint("Vertical", 42),
    Sketcher.Constraint("Horizontal", 43),
    Sketcher.Constraint("Vertical", 44),
    Sketcher.Constraint("Horizontal", 45),
    Sketcher.Constraint("Vertical", 46),
    Sketcher.Constraint("Horizontal", 47),
    Sketcher.Constraint("Vertical", 48),
    Sketcher.Constraint("Horizontal", 49),
    Sketcher.Constraint("Vertical", 50),
    Sketcher.Constraint("Horizontal", 51),
    Sketcher.Constraint("Vertical", 52),
    Sketcher.Constraint("Horizontal", 53),
    Sketcher.Constraint("Vertical", 54),
    Sketcher.Constraint("Horizontal", 55),
    Sketcher.Constraint("Vertical", 56),
    Sketcher.Constraint("Horizontal", 57),
    Sketcher.Constraint("Vertical", 58),
    Sketcher.Constraint("Horizontal", 59),
    Sketcher.Constraint("Symmetric", 28, 2, 30, 2, -1, 1),
    Sketcher.Constraint("Symmetric", 26, 2, 32, 2, -1, 1),
    Sketcher.Constraint("Symmetric", 24, 2, 34, 2, -1, 1),
    Sketcher.Constraint("Symmetric", 22, 2, 36, 2, -1, 1),
    Sketcher.Constraint("Symmetric", 20, 2, 38, 2, -1, 1),
    Sketcher.Constraint("Symmetric", 18, 2, 40, 2, -1, 1),
    Sketcher.Constraint("Symmetric", 16, 2, 42, 2, -1, 1),
    Sketcher.Constraint("Symmetric", 14, 2, 44, 2, -1, 1),
    Sketcher.Constraint("Symmetric", 12, 2, 46, 2, -1, 1),
    Sketcher.Constraint("Symmetric", 10, 2, 48, 2, -1, 1),
    Sketcher.Constraint("Symmetric", 8, 2, 50, 2, -1, 1),
    Sketcher.Constraint("Symmetric", 2, 2, 52, 2, -1, 1),
    Sketcher.Constraint("Symmetric", 0, 2, 54, 2, -1, 1),
    Sketcher.Constraint("Symmetric", 6, 2, 56, 2, -1, 1),
    Sketcher.Constraint("Symmetric", 4, 2, 58, 2, -1, 1),
    Sketcher.Constraint("Horizontal", 1, 2, 4, 2),
    Sketcher.Constraint("Horizontal", 3, 2, 6, 2),
    Sketcher.Constraint("Horizontal", 5, 2, 8, 2),
    Sketcher.Constraint("Horizontal", 7, 2, 10, 2),
    Sketcher.Constraint("Horizontal", 9, 2, 12, 2),
    Sketcher.Constraint("Horizontal", 11, 2, 14, 2),
    Sketcher.Constraint("Horizontal", 13, 2, 16, 2),
    Sketcher.Constraint("Horizontal", 15, 2, 18, 2),
    Sketcher.Constraint("Horizontal", 17, 2, 20, 2),
    Sketcher.Constraint("Horizontal", 19, 2, 22, 2),
    Sketcher.Constraint("Horizontal", 21, 2, 24, 2),
    Sketcher.Constraint("Horizontal", 23, 2, 26, 2),
    Sketcher.Constraint("Horizontal", 25, 2, 28, 2),
    Sketcher.Constraint("Horizontal", 27, 2, 30, 2),
    Sketcher.Constraint("Equal", 3, 5),
    Sketcher.Constraint("Equal", 7, 9),
    Sketcher.Constraint("Equal", 11, 13),
    Sketcher.Constraint("Equal", 15, 17),
    Sketcher.Constraint("Equal", 19, 21),
    Sketcher.Constraint("Equal", 23, 25),
    Sketcher.Constraint("Equal", 27, 29),
    Sketcher.Constraint("DistanceX", 1, 1, 1, 2, 0.6),
    Sketcher.Constraint("DistanceX", 8, 2, -1, 1, 13.0),
    Sketcher.Constraint("DistanceY", 0, 2, 0, 1, 0.35),
    Sketcher.Constraint("DistanceX", 0, 2, -1, 1, 15.54),
    Sketcher.Constraint("DistanceX", 4, 2, -1, 1, 18.08),
    Sketcher.Constraint("DistanceX", 12, 2, -1, 1, 10.46),
    Sketcher.Constraint("DistanceX", 16, 2, -1, 1, 7.92),
    Sketcher.Constraint("DistanceX", 20, 2, -1, 1, 5.38),
    Sketcher.Constraint("DistanceX", 24, 2, -1, 1, 2.84),
])
pad2 = body.newObject("PartDesign::Pad", "Pad001")
pad2.Profile = sketch3
pad2.Length = 2.9
doc.recompute()

chamfer = body.newObject("PartDesign::Chamfer", "Chamfer")
chamfer.Base = (pad2, edges_at(pad2, [
    (2.855, 8.5, 0),
    (2.54, 8.5, -0.315),
    (2.225, 8.5, 0),
    (2.54, 8.5, 0.315),
    (5.395, 8.5, 0),
    (5.08, 8.5, -0.315),
    (4.765, 8.5, 0),
    (5.08, 8.5, 0.315),
    (7.935, 8.5, 0),
    (7.62, 8.5, -0.315),
    (7.305, 8.5, 0),
    (7.62, 8.5, 0.315),
    (10.475, 8.5, 0),
    (10.16, 8.5, -0.315),
    (9.845, 8.5, 0),
    (10.16, 8.5, 0.315),
    (13.015, 8.5, 0),
    (12.7, 8.5, -0.315),
    (12.385, 8.5, 0),
    (12.7, 8.5, 0.315),
    (15.555, 8.5, 0),
    (15.24, 8.5, -0.315),
    (14.925, 8.5, 0),
    (15.24, 8.5, 0.315),
    (18.095, 8.5, 0),
    (17.78, 8.5, -0.315),
    (17.465, 8.5, 0),
    (17.78, 8.5, 0.315),
    (-17.465, 8.5, 0),
    (-17.78, 8.5, -0.315),
    (-18.095, 8.5, 0),
    (-17.78, 8.5, 0.315),
    (-14.925, 8.5, 0),
    (-15.24, 8.5, -0.315),
    (-15.555, 8.5, 0),
    (-15.24, 8.5, 0.315),
    (-12.385, 8.5, 0),
    (-12.7, 8.5, -0.315),
    (-13.015, 8.5, 0),
    (-12.7, 8.5, 0.315),
    (-9.845, 8.5, 0),
    (-10.16, 8.5, -0.315),
    (-10.475, 8.5, 0),
    (-10.16, 8.5, 0.315),
    (-7.305, 8.5, 0),
    (-7.62, 8.5, -0.315),
    (-7.935, 8.5, 0),
    (-7.62, 8.5, 0.315),
    (-4.765, 8.5, 0),
    (-5.08, 8.5, -0.315),
    (-5.395, 8.5, 0),
    (-5.08, 8.5, 0.315),
    (-2.225, 8.5, 0),
    (-2.54, 8.5, -0.315),
    (-2.855, 8.5, 0),
    (-2.54, 8.5, 0.315),
    (0.315, 8.5, 0),
    (0, 8.5, -0.315),
    (-0.315, 8.5, 0),
    (0, 8.5, 0.315),
]))
chamfer.Size = 0.4

sketch4 = body.newObject("Sketcher::SketchObject", "Sketch003")
sketch4.AttachmentSupport = (doc.getObject("XZ_Plane"), [""])
sketch4.MapMode = "FlatFace"
sketch4.AttachmentOffset = App.Placement(Vector(0, 0, -8.5), App.Rotation())
sketch4.addGeometry([
    Part.LineSegment(Vector(6.3, -2.1, 0), Vector(6.3, 2.3, 0)),
    Part.LineSegment(Vector(6.3, 2.3, 0), Vector(25.7, 2.3, 0)),
    Part.LineSegment(Vector(25.7, 2.3, 0), Vector(25.7, -2.1, 0)),
    Part.LineSegment(Vector(25.7, -2.1, 0), Vector(6.3, -2.1, 0)),
], False)
sketch4.addConstraint([
    Sketcher.Constraint("Coincident", 0, 2, 1, 1),
    Sketcher.Constraint("Coincident", 1, 2, 2, 1),
    Sketcher.Constraint("Coincident", 2, 2, 3, 1),
    Sketcher.Constraint("Coincident", 3, 2, 0, 1),
    Sketcher.Constraint("Vertical", 0),
    Sketcher.Constraint("Horizontal", 1),
    Sketcher.Constraint("Vertical", 2),
    Sketcher.Constraint("Horizontal", 3),
    Sketcher.Constraint("DistanceX", -1, 1, 0, 2, 6.35),
    Sketcher.Constraint("DistanceX", 1, 1, 1, 2, 19.378829),
    Sketcher.Constraint("DistanceY", 0, 1, 0, 2, 4.471479),
    Sketcher.Constraint("DistanceY", -1, 1, 0, 2, 2.332665),
])
pocket2 = body.newObject("PartDesign::Pocket", "Pocket001")
pocket2.Profile = sketch4
pocket2.Type = "ThroughAll"
pocket2.Reversed = True

sketch5 = body.newObject("Sketcher::SketchObject", "Sketch004")
sketch5.AttachmentSupport = (doc.getObject("XY_Plane"), [""])
sketch5.MapMode = "FlatFace"
sketch5.AttachmentOffset = App.Placement(Vector(0, 0, 1.2), App.Rotation())
sketch5.addGeometry([
    Part.LineSegment(Vector(-19, 9, 0), Vector(-19, -4, 0)),
    Part.LineSegment(Vector(-19, -4, 0), Vector(-4, -4, 0)),
    Part.LineSegment(Vector(-4, -4, 0), Vector(-4, 9, 0)),
    Part.LineSegment(Vector(-4, 9, 0), Vector(-19, 9, 0)),
], False)
sketch5.addConstraint([
    Sketcher.Constraint("Coincident", 0, 2, 1, 1),
    Sketcher.Constraint("Coincident", 1, 2, 2, 1),
    Sketcher.Constraint("Coincident", 2, 2, 3, 1),
    Sketcher.Constraint("Coincident", 3, 2, 0, 1),
    Sketcher.Constraint("Vertical", 0),
    Sketcher.Constraint("Horizontal", 1),
    Sketcher.Constraint("Vertical", 2),
    Sketcher.Constraint("Horizontal", 3),
    Sketcher.Constraint("DistanceX", 1, 1, 1, 2, 15.24),
    Sketcher.Constraint("DistanceY", -1, 1, 2, 2, 8.5),
    Sketcher.Constraint("DistanceX", 0, 2, -1, 1, 19.05),
    Sketcher.Constraint("DistanceY", 0, 2, 0, 1, 12.363722),
])
pocket3 = body.newObject("PartDesign::Pocket", "Pocket002")
pocket3.Profile = sketch5
pocket3.Type = "ThroughAll"

doc.recompute()
